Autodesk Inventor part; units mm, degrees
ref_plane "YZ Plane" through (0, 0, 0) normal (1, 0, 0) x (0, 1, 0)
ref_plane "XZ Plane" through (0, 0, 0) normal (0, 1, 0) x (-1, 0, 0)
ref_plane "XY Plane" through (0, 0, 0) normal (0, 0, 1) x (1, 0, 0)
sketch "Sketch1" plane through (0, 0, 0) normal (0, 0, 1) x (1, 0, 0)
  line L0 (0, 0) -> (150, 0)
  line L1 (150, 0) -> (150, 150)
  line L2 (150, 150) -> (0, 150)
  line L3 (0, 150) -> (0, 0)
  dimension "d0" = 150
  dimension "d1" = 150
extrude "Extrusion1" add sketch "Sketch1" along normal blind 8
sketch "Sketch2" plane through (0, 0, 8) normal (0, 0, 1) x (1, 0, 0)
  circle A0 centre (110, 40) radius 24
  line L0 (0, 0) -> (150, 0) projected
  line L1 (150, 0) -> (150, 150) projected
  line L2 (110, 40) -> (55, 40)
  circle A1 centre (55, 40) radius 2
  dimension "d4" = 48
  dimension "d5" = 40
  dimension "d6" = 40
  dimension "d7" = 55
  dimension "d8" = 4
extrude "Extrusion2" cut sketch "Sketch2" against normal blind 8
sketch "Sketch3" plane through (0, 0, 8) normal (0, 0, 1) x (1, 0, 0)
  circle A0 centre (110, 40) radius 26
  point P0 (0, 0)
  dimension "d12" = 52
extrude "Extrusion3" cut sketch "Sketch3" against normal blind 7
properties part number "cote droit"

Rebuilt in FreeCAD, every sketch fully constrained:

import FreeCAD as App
import Part
import Sketcher
from FreeCAD import Vector


def add_polygon(sketch, points):
    """Adds a closed chain of lines whose ends are joined by coincident constraints."""
    first, n = sketch.GeometryCount, len(points)
    for a, b in zip(points, points[1:] + points[:1]):
        sketch.addGeometry(Part.LineSegment(App.Vector(*a, 0), App.Vector(*b, 0)), False)
    for i in range(n):
        sketch.addConstraint(Sketcher.Constraint("Coincident", first + i, 2, first + (i + 1) % n, 1))

doc = App.newDocument("Part")
body = doc.addObject("PartDesign::Body", "Body")

# Sketch on XY plane
sketch1 = body.newObject("Sketcher::SketchObject", "Sketch")
sketch1.AttachmentSupport = (doc.getObject("XY_Plane"), [""])
sketch1.MapMode = "FlatFace"
add_polygon(sketch1, [(0, 150), (0, 0), (150, 0), (150, 150)])  # lines 0-3
sketch1.addConstraint(Sketcher.Constraint("Vertical", 0))
sketch1.addConstraint(Sketcher.Constraint("Horizontal", 1))
sketch1.addConstraint(Sketcher.Constraint("Vertical", 2))
sketch1.addConstraint(Sketcher.Constraint("Horizontal", 3))
sketch1.addConstraint(Sketcher.Constraint("Coincident", 0, 2, -1, 1))
sketch1.addConstraint(Sketcher.Constraint("Equal", 3, 0))
sketch1.addConstraint(Sketcher.Constraint("DistanceX", 1, 1, 1, 2, 150.0))
pad1 = body.newObject("PartDesign::Pad", "Pad")
pad1.Profile = sketch1
pad1.Length = 8

# Sketch on XY plane
sketch2 = body.newObject("Sketcher::SketchObject", "Sketch001")
sketch2.AttachmentSupport = (doc.getObject("XY_Plane"), [""])
sketch2.MapMode = "FlatFace"
sketch2.AttachmentOffset = App.Placement(Vector(0, 0, 8), App.Rotation())
sketch2.addGeometry(Part.Circle(Vector(110, 40, 0), Vector(0, 0, 1), 24), False)
sketch2.addGeometry(Part.Circle(Vector(55, 40, 0), Vector(0, 0, 1), 2), False)
sketch2.addConstraint(Sketcher.Constraint("Horizontal", 0, 3, 1, 3))
sketch2.addConstraint(Sketcher.Constraint("Diameter", 0, 48.0))
sketch2.addConstraint(Sketcher.Constraint("Diameter", 1, 4.0))
sketch2.addConstraint(Sketcher.Constraint("DistanceY", -1, 1, 0, 3, 40.0))
sketch2.addConstraint(Sketcher.Constraint("DistanceX", -1, 1, 1, 3, 55.0))
sketch2.addConstraint(Sketcher.Constraint("DistanceX", 1, 3, 0, 3, 55.0))
pocket1 = body.newObject("PartDesign::Pocket", "Pocket")
pocket1.Profile = sketch2
pocket1.Length = 8

# Sketch on XY plane
sketch3 = body.newObject("Sketcher::SketchObject", "Sketch002")
sketch3.AttachmentSupport = (doc.getObject("XY_Plane"), [""])
sketch3.MapMode = "FlatFace"
sketch3.AttachmentOffset = App.Placement(Vector(0, 0, 8), App.Rotation())
sketch3.addGeometry(Part.Circle(Vector(110, 40, 0), Vector(0, 0, 1), 26), False)
sketch3.addConstraint(Sketcher.Constraint("Diameter", 0, 52.0))
sketch3.addConstraint(Sketcher.Constraint("DistanceX", -1, 1, 0, 3, 110.0))
sketch3.addConstraint(Sketcher.Constraint("DistanceY", -1, 1, 0, 3, 40.0))
pocket2 = body.newObject("PartDesign::Pocket", "Pocket001")
pocket2.Profile = sketch3
pocket2.Length = 7

doc.recompute()
